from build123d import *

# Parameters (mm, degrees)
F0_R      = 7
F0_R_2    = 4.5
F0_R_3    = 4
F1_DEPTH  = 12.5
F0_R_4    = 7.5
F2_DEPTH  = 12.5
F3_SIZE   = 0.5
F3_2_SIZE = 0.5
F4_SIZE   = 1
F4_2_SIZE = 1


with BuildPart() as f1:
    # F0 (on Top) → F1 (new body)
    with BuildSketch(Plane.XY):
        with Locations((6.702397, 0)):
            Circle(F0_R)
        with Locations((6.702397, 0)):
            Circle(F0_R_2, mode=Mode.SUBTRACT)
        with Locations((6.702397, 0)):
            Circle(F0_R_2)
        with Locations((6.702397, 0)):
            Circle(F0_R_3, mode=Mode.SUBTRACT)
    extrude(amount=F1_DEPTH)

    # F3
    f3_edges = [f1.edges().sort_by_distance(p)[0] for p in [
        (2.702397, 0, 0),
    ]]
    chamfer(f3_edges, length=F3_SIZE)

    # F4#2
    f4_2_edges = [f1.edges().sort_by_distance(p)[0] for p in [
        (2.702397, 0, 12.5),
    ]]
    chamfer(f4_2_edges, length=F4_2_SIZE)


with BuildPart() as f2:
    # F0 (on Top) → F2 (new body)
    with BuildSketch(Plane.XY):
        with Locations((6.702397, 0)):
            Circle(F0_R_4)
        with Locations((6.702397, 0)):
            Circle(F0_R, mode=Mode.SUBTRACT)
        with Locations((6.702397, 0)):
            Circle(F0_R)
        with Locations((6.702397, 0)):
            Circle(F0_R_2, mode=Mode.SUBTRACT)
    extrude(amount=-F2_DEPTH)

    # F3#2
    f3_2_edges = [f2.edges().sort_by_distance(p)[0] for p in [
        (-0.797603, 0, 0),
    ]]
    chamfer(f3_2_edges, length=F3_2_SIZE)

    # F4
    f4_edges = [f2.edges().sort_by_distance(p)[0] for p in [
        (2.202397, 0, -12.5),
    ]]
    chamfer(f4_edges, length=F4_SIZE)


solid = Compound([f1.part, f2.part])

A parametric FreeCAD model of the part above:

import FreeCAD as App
import Part
import Sketcher

V = App.Vector
Q = App.Units.Quantity


def edges_at(feature, points):
    """Names of the edges that pass closest to the given points."""
    edges = feature.Shape.Edges
    near = lambda p: min(range(len(edges)), key=lambda i: edges[i].distToShape(Part.Vertex(*p))[0])
    return sorted({f"Edge{near(p) + 1}" for p in points})

doc = App.newDocument("Part")
params = doc.addObject("Spreadsheet::Sheet", "Params")
for row, (alias, value) in enumerate([
    ("sketch1_diameter", "14 mm"),
    ("sketch1_diameter2", "8 mm"),
    ("pad1_length", "12.5 mm"),
    ("chamfer_size", "0.5 mm"),
    ("chamfer2_size", "1 mm"),
    ("sketch2_diameter", "15 mm"),
    ("sketch2_diameter2", "9 mm"),
    ("pad2_length", "12.5 mm"),
    ("chamfer3_size", "0.5 mm"),
    ("chamfer4_size", "1 mm"),
], start=1):
    params.set(f"A{row}", alias)
    params.set(f"B{row}", "=" + value)
    params.setAlias(f"B{row}", alias)

body = doc.addObject("PartDesign::Body", "Body")

# Sketch on XY plane
sketch1 = body.newObject("Sketcher::SketchObject", "Sketch")
sketch1.AttachmentSupport = (doc.getObject("XY_Plane"), [""])
sketch1.MapMode = "FlatFace"
sketch1.addGeometry(Part.Circle(V(6.7, 0, 0), V(0, 0, 1), 7), False)
sketch1.addGeometry(Part.Circle(V(6.7, 0, 0), V(0, 0, 1), 4), False)
sketch1.addConstraint(Sketcher.Constraint("Coincident", 1, 3, 0, 3))
sketch1.addConstraint(Sketcher.Constraint("PointOnObject", 0, 3, -1))
sketch1.addConstraint(Sketcher.Constraint("Diameter", 0, Q("14 mm")))
sketch1.addConstraint(Sketcher.Constraint("Diameter", 1, Q("8 mm")))
sketch1.addConstraint(Sketcher.Constraint("DistanceX", -1, 1, 0, 3, Q("6.702397 mm")))
sketch1.setExpression("Constraints[2]", "Params.sketch1_diameter")
sketch1.setExpression("Constraints[3]", "Params.sketch1_diameter2")
pad1 = body.newObject("PartDesign::Pad", "Pad")
pad1.Profile = sketch1
pad1.setExpression("Length", "Params.pad1_length")
doc.recompute()

chamfer = body.newObject("PartDesign::Chamfer", "Chamfer")
chamfer.Base = (pad1, edges_at(pad1, [(2.702, 0, 0)]))
chamfer.setExpression("Size", "Params.chamfer_size")
doc.recompute()

chamfer2 = body.newObject("PartDesign::Chamfer", "Chamfer001")
chamfer2.Base = (chamfer, edges_at(chamfer, [(2.702, 0, 12.5)]))
chamfer2.setExpression("Size", "Params.chamfer2_size")
body2 = doc.addObject("PartDesign::Body", "Body001")

# Sketch on XY plane
sketch2 = body2.newObject("Sketcher::SketchObject", "Sketch001")
sketch2.AttachmentSupport = (doc.getObject("XY_Plane001"), [""])
sketch2.MapMode = "FlatFace"
sketch2.addGeometry(Part.Circle(V(6.7, 0, 0), V(0, 0, 1), 7.5), False)
sketch2.addGeometry(Part.Circle(V(6.7, 0, 0), V(0, 0, 1), 4.5), False)
sketch2.addConstraint(Sketcher.Constraint("Coincident", 1, 3, 0, 3))
sketch2.addConstraint(Sketcher.Constraint("PointOnObject", 0, 3, -1))
sketch2.addConstraint(Sketcher.Constraint("Diameter", 0, Q("15 mm")))
sketch2.addConstraint(Sketcher.Constraint("Diameter", 1, Q("9 mm")))
sketch2.addConstraint(Sketcher.Constraint("DistanceX", -1, 1, 0, 3, Q("6.702397 mm")))
sketch2.setExpression("Constraints[2]", "Params.sketch2_diameter")
sketch2.setExpression("Constraints[3]", "Params.sketch2_diameter2")
pad2 = body2.newObject("PartDesign::Pad", "Pad001")
pad2.Profile = sketch2
pad2.setExpression("Length", "Params.pad2_length")
pad2.Reversed = True
doc.recompute()

chamfer3 = body2.newObject("PartDesign::Chamfer", "Chamfer002")
chamfer3.Base = (pad2, edges_at(pad2, [(-0.798, 0, 0)]))
chamfer3.setExpression("Size", "Params.chamfer3_size")
doc.recompute()

chamfer4 = body2.newObject("PartDesign::Chamfer", "Chamfer003")
chamfer4.Base = (chamfer3, edges_at(chamfer3, [(2.202, 0, -12.5)]))
chamfer4.setExpression("Size", "Params.chamfer4_size")

doc.recompute()
